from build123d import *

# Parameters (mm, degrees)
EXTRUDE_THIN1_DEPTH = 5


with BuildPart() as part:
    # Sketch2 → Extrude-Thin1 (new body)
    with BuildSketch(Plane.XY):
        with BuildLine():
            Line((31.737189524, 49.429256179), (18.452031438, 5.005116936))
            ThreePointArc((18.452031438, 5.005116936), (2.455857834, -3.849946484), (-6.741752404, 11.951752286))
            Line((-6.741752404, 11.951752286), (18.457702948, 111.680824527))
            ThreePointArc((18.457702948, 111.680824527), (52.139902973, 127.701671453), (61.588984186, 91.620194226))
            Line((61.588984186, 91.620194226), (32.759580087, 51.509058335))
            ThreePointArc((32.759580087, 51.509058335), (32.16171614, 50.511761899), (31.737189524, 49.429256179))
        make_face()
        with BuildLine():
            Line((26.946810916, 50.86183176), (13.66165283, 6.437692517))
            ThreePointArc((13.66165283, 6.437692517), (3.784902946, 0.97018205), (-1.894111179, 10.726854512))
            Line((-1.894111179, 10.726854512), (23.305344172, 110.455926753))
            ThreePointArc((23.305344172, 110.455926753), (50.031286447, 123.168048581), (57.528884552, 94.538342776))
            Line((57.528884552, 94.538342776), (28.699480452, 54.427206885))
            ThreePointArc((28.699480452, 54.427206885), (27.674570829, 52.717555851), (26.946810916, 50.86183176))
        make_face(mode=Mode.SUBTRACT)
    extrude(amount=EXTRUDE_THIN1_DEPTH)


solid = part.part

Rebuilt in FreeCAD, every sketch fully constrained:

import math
import FreeCAD as App
import Part
import Sketcher

doc = App.newDocument("Part")
body = doc.addObject("PartDesign::Body", "Body")

sketch1 = doc.addObject("Sketcher::SketchObject", "Sketch")
body.addObject(sketch1)
sketch1.AttachmentSupport = (doc.XY_Plane, [""])
sketch1.MapMode = "FlatFace"
sketch1.addGeometry([
    Part.LineSegment(App.Vector(18.5, 5, 0), App.Vector(31.7, 49.4, 0)),
    Part.ArcOfCircle(Part.Circle(App.Vector(38.4, 47.4, 0), App.Vector(0, 0, 1), 7), math.radians(144.29), math.radians(163.35)),
    Part.LineSegment(App.Vector(32.8, 51.5, 0), App.Vector(61.6, 91.6, 0)),
    Part.ArcOfCircle(Part.Circle(App.Vector(41.9, 105.7, 0), App.Vector(0, 0, 1), 24.2), math.radians(-36), math.radians(166)),
    Part.LineSegment(App.Vector(18.5, 111.7, 0), App.Vector(-6.7, 12, 0)),
    Part.ArcOfCircle(Part.Circle(App.Vector(5.9, 8.7, 0), App.Vector(0, 0, 1), 13.1), math.radians(166), math.radians(343)),
    Part.LineSegment(App.Vector(26.9, 50.9, 0), App.Vector(13.7, 6.4, 0)),
    Part.ArcOfCircle(Part.Circle(App.Vector(5.9, 8.7, 0), App.Vector(0, 0, 1), 8.1), math.radians(166), math.radians(343)),
    Part.LineSegment(App.Vector(-1.9, 10.7, 0), App.Vector(23.3, 110.5, 0)),
    Part.ArcOfCircle(Part.Circle(App.Vector(41.9, 105.7, 0), App.Vector(0, 0, 1), 19.2), math.radians(-36), math.radians(166)),
    Part.LineSegment(App.Vector(57.5, 94.5, 0), App.Vector(28.7, 54.4, 0)),
    Part.ArcOfCircle(Part.Circle(App.Vector(38.4, 47.4, 0), App.Vector(0, 0, 1), 12), math.radians(144.29), math.radians(163.35)),
], False)
sketch1.addConstraint([
    Sketcher.Constraint("Tangent", 0, 2, 1, 2),
    Sketcher.Constraint("Tangent", 1, 1, 2, 1),
    Sketcher.Constraint("Tangent", 2, 2, 3, 1),
    Sketcher.Constraint("Tangent", 3, 2, 4, 1),
    Sketcher.Constraint("Tangent", 4, 2, 5, 1),
    Sketcher.Constraint("Tangent", 5, 2, 0, 1),
    Sketcher.Constraint("Tangent", 6, 2, 7, 2),
    Sketcher.Constraint("Tangent", 7, 1, 8, 1),
    Sketcher.Constraint("Tangent", 8, 2, 9, 2),
    Sketcher.Constraint("Tangent", 9, 1, 10, 1),
    Sketcher.Constraint("Tangent", 10, 2, 11, 1),
    Sketcher.Constraint("Tangent", 11, 2, 6, 1),
    Sketcher.Constraint("Coincident", 7, 3, 5, 3),
    Sketcher.Constraint("Coincident", 9, 3, 3, 3),
    Sketcher.Constraint("Coincident", 11, 3, 1, 3),
    Sketcher.Constraint("Parallel", 0, 6),
    Sketcher.Constraint("Parallel", 4, 8),
    Sketcher.Constraint("Radius", 1, 7.0),
    Sketcher.Constraint("Radius", 11, 12.0),
    Sketcher.Constraint("Radius", 3, 24.21),
    Sketcher.Constraint("Radius", 5, 13.07),
    Sketcher.Constraint("DistanceX", 5, 3, 3, 3, 36.0),
    Sketcher.Constraint("DistanceY", 5, 3, 3, 3, 97.0),
    Sketcher.Constraint("DistanceX", 5, 3, 1, 1, 26.829598),
    Sketcher.Constraint("DistanceY", 4, 2, 1, 3, 35.471898),
    Sketcher.Constraint("DistanceX", -1, 1, 1, 3, 38.44372),
    Sketcher.Constraint("DistanceY", -1, 1, 1, 3, 47.42365),
])
pad1 = doc.addObject("PartDesign::Pad", "Pad")
body.addObject(pad1)
pad1.Profile = sketch1
pad1.Length = 5

doc.recompute()
